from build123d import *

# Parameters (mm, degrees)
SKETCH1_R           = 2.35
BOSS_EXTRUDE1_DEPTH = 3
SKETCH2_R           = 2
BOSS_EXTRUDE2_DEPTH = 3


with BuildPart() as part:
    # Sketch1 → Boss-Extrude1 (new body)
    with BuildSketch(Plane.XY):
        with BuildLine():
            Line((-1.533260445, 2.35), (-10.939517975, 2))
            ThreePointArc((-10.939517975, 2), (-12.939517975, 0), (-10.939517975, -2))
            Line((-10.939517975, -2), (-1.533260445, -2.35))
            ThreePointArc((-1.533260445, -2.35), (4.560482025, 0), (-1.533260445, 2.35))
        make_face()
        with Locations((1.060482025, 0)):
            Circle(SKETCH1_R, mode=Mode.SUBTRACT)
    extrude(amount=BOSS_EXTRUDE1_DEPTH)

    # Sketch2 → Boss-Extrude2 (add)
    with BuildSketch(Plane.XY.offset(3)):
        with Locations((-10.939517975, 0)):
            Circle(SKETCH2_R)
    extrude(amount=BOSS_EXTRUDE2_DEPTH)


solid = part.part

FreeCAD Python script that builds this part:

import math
import FreeCAD as App
import Part
import Sketcher

doc = App.newDocument("Part")
body = doc.addObject("PartDesign::Body", "Body")

# Sketch on XY plane
sketch1 = doc.addObject("Sketcher::SketchObject", "Sketch")
body.addObject(sketch1)
sketch1.AttachmentSupport = (doc.XY_Plane, [""])
sketch1.MapMode = "FlatFace"
sketch1.addGeometry(Part.LineSegment(App.Vector(-1.53326, 2.35, 0), App.Vector(-10.939518, 2, 0)), False)
sketch1.addGeometry(Part.ArcOfCircle(Part.Circle(App.Vector(-10.939518, 0, 0), App.Vector(0, 0, 1), 2), math.radians(90), math.radians(270)), False)
sketch1.addGeometry(Part.LineSegment(App.Vector(-10.939518, -2, 0), App.Vector(-1.53326, -2.35, 0)), False)
sketch1.addGeometry(Part.ArcOfCircle(Part.Circle(App.Vector(1.060482, 0, 0), App.Vector(0, 0, 1), 3.5), math.radians(-137.822581), math.radians(137.822581)), False)
sketch1.addGeometry(Part.Circle(App.Vector(1.060482, 0, 0), App.Vector(0, 0, 1), 2.35), False)
sketch1.addConstraint(Sketcher.Constraint("Coincident", 0, 2, 1, 1))
sketch1.addConstraint(Sketcher.Constraint("Coincident", 1, 2, 2, 1))
sketch1.addConstraint(Sketcher.Constraint("Coincident", 2, 2, 3, 1))
sketch1.addConstraint(Sketcher.Constraint("Coincident", 3, 2, 0, 1))
sketch1.addConstraint(Sketcher.Constraint("Coincident", 4, 3, 3, 3))
sketch1.addConstraint(Sketcher.Constraint("Symmetric", 0, 2, 1, 2, -1))
sketch1.addConstraint(Sketcher.Constraint("Symmetric", 2, 2, 3, 2, -1))
sketch1.addConstraint(Sketcher.Constraint("Vertical", 1, 3, 0, 2))
sketch1.addConstraint(Sketcher.Constraint("Radius", 1, 2.0))
sketch1.addConstraint(Sketcher.Constraint("Diameter", 4, 4.7))
sketch1.addConstraint(Sketcher.Constraint("Radius", 3, 3.5))
sketch1.addConstraint(Sketcher.Constraint("DistanceX", 1, 3, 3, 3, 12.0))
sketch1.addConstraint(Sketcher.Constraint("DistanceY", 2, 2, 3, 2, 4.7))
sketch1.addConstraint(Sketcher.Constraint("DistanceX", 2, 2, -1, 1, 1.53326))
pad1 = doc.addObject("PartDesign::Pad", "Pad")
body.addObject(pad1)
pad1.Profile = sketch1
pad1.Length = 3

# Sketch on XY plane
sketch2 = doc.addObject("Sketcher::SketchObject", "Sketch001")
body.addObject(sketch2)
sketch2.AttachmentSupport = (doc.XY_Plane, [""])
sketch2.MapMode = "FlatFace"
sketch2.AttachmentOffset = App.Placement(App.Vector(0, 0, 3), App.Rotation())
sketch2.addGeometry(Part.Circle(App.Vector(-10.939518, 0, 0), App.Vector(0, 0, 1), 2), False)
sketch2.addConstraint(Sketcher.Constraint("PointOnObject", 0, 3, -1))
sketch2.addConstraint(Sketcher.Constraint("Diameter", 0, 4.0))
sketch2.addConstraint(Sketcher.Constraint("DistanceX", 0, 3, -1, 1, 10.939518))
pad2 = doc.addObject("PartDesign::Pad", "Pad001")
body.addObject(pad2)
pad2.Profile = sketch2
pad2.Length = 3

doc.recompute()
